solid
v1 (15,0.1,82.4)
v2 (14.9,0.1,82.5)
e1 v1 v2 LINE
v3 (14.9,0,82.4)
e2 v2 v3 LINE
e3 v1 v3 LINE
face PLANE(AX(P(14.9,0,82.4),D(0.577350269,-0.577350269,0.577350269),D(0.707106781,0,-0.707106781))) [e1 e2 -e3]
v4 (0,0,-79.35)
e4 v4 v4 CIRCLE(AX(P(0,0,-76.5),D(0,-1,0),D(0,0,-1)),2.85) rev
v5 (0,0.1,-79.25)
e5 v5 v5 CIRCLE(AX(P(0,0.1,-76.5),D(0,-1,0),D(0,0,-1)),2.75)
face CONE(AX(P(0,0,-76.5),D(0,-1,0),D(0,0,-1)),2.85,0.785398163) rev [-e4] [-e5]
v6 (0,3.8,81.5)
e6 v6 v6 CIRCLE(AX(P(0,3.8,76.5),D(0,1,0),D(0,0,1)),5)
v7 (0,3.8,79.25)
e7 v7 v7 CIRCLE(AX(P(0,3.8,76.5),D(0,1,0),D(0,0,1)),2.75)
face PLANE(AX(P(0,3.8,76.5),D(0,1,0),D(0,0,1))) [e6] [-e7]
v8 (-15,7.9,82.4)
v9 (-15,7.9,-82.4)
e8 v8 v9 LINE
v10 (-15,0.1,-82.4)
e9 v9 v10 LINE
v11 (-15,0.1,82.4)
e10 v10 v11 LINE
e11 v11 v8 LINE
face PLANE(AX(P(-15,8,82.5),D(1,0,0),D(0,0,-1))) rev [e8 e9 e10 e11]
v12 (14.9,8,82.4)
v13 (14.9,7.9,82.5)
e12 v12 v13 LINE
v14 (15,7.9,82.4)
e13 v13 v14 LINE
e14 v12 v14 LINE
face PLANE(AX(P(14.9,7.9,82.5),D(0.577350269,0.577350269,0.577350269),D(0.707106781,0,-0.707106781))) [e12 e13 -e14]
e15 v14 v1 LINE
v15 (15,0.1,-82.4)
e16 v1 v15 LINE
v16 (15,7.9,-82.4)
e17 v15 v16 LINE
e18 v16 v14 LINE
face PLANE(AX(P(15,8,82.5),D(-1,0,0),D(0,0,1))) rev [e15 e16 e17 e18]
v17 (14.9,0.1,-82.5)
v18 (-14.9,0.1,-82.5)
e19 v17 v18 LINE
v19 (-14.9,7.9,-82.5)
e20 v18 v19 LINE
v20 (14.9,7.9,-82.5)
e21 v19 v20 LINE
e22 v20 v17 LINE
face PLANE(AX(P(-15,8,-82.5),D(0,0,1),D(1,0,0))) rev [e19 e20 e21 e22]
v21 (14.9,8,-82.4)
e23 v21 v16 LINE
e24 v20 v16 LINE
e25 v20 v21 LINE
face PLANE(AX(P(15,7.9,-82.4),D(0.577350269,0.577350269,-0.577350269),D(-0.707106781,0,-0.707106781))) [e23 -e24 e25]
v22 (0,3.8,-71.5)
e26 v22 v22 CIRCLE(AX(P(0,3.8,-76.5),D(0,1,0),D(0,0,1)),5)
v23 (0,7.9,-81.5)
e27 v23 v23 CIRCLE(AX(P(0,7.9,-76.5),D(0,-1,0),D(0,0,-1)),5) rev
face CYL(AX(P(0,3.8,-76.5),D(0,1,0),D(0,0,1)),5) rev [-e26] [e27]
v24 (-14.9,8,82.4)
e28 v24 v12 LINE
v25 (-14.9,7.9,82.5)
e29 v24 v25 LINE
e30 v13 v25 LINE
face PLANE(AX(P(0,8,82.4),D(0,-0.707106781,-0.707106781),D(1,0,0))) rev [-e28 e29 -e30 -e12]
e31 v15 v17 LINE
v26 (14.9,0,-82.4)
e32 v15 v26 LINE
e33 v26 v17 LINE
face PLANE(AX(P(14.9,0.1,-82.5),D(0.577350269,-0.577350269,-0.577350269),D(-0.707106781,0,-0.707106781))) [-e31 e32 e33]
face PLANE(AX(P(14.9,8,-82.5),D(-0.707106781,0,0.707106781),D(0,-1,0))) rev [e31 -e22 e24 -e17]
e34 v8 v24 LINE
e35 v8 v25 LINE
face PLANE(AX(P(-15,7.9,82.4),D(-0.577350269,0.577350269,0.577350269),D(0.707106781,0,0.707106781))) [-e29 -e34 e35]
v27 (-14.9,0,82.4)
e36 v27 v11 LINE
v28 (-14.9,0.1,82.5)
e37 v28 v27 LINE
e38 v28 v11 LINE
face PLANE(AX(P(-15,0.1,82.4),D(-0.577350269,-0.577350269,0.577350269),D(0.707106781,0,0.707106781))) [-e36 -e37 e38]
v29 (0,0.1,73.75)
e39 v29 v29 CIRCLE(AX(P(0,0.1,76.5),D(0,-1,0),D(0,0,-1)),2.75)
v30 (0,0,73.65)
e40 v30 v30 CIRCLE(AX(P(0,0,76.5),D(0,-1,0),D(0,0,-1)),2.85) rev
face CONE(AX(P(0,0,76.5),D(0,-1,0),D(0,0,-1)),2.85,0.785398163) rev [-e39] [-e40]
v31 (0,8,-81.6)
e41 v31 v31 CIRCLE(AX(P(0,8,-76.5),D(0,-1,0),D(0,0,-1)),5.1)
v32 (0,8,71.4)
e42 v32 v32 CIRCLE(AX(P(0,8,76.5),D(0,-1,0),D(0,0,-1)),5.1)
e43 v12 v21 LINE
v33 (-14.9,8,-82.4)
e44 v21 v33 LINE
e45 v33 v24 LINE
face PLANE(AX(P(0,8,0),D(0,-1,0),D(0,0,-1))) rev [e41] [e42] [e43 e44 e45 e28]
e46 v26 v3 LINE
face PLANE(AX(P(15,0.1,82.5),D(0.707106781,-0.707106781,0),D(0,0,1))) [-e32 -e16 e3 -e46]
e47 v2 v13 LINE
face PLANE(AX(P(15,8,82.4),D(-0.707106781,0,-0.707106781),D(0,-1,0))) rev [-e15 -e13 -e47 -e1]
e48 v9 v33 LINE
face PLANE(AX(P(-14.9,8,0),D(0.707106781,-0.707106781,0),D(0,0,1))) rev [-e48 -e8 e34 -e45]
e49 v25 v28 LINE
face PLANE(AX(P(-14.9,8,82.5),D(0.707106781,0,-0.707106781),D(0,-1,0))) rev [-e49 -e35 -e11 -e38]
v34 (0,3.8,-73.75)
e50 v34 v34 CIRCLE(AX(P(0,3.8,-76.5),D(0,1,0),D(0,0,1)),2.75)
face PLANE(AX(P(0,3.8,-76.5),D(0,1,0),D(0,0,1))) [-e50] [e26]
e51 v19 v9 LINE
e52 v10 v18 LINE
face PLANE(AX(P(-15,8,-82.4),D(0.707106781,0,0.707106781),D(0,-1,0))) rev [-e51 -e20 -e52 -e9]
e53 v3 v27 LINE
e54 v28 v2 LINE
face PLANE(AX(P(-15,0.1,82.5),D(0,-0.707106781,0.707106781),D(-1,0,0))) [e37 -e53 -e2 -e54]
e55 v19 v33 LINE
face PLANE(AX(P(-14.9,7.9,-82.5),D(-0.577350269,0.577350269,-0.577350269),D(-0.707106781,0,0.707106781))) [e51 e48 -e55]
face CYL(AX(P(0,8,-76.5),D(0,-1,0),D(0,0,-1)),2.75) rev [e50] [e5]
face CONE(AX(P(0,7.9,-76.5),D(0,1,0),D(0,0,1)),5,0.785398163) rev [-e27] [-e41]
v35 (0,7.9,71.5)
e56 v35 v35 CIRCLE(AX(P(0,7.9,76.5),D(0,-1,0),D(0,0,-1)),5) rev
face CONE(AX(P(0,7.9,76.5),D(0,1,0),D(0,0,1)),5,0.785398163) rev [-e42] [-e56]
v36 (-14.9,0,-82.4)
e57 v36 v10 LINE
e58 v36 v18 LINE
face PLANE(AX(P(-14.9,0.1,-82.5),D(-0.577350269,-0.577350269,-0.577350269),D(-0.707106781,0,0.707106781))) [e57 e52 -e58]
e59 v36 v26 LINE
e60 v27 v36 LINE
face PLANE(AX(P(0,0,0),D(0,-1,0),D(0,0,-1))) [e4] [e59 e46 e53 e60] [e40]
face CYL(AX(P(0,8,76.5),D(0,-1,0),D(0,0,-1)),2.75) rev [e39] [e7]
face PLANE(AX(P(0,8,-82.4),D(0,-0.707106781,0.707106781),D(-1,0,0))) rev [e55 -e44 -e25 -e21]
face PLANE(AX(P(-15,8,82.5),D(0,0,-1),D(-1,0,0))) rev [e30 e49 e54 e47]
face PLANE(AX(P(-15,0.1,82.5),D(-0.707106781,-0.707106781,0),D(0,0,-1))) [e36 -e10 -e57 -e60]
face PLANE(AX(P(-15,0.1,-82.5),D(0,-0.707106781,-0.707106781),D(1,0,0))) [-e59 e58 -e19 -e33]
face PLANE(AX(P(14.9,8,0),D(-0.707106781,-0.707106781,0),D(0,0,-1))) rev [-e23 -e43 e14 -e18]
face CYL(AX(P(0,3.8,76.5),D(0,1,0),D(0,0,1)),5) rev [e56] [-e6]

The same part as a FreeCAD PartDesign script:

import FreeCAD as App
import Part
import Sketcher
from FreeCAD import Vector
Q = App.Units.Quantity


def edges_at(feature, points):
    """Names of the edges that pass closest to the given points."""
    edges = feature.Shape.Edges
    near = lambda p: min(range(len(edges)), key=lambda i: edges[i].distToShape(Part.Vertex(*p))[0])
    return sorted({f"Edge{near(p) + 1}" for p in points})

doc = App.newDocument("Part")
body = doc.addObject("PartDesign::Body", "Body")

sketch1 = doc.addObject("Sketcher::SketchObject", "Sketch")
body.addObject(sketch1)
sketch1.AttachmentSupport = (doc.XZ_Plane, [""])
sketch1.MapMode = "FlatFace"
sketch1.addGeometry([
    Part.LineSegment(Vector(-15, -82.5, 0), Vector(-15, 82.5, 0)),
    Part.LineSegment(Vector(-15, 82.5, 0), Vector(15, 82.5, 0)),
    Part.LineSegment(Vector(15, 82.5, 0), Vector(15, -82.5, 0)),
    Part.LineSegment(Vector(15, -82.5, 0), Vector(-15, -82.5, 0)),
    Part.Circle(Vector(0, 76.5, 0), Vector(0, 0, 1), 2.8),
    Part.Circle(Vector(0, -76.5, 0), Vector(0, 0, 1), 2.8),
], False)
sketch1.addConstraint([
    Sketcher.Constraint("Coincident", 0, 2, 1, 1),
    Sketcher.Constraint("Coincident", 1, 2, 2, 1),
    Sketcher.Constraint("Coincident", 2, 2, 3, 1),
    Sketcher.Constraint("Coincident", 3, 2, 0, 1),
    Sketcher.Constraint("Vertical", 0),
    Sketcher.Constraint("Horizontal", 1),
    Sketcher.Constraint("Vertical", 2),
    Sketcher.Constraint("Horizontal", 3),
    Sketcher.Constraint("Equal", 4, 5),
    Sketcher.Constraint("Symmetric", 4, 3, 5, 3, -1, 1),
    Sketcher.Constraint("Symmetric", 0, 2, 2, 2, -1, 1),
    Sketcher.Constraint("PointOnObject", 4, 3, -2),
    Sketcher.Constraint("Diameter", 4, Q("5.5 mm")),
    Sketcher.Constraint("DistanceX", 1, 1, 1, 2, Q("30 mm")),
    Sketcher.Constraint("DistanceY", 0, 1, 0, 2, Q("165 mm")),
    Sketcher.Constraint("DistanceY", 5, 3, 4, 3, Q("153 mm")),
])
pad1 = doc.addObject("PartDesign::Pad", "Pad")
body.addObject(pad1)
pad1.Profile = sketch1
pad1.Length = 8
pad1.Reversed = True

sketch2 = doc.addObject("Sketcher::SketchObject", "Sketch001")
body.addObject(sketch2)
sketch2.AttachmentSupport = (doc.XZ_Plane, [""])
sketch2.MapMode = "FlatFace"
sketch2.AttachmentOffset = App.Placement(Vector(0, 0, -8), App.Rotation())
sketch2.addGeometry([
    Part.Circle(Vector(0, -76, 0), Vector(0, 0, 1), 5),
    Part.Circle(Vector(0, 76, 0), Vector(0, 0, 1), 5),
], False)
sketch2.addConstraint([
    Sketcher.Constraint("Equal", 0, 1),
    Sketcher.Constraint("Symmetric", 0, 3, 1, 3, -1, 1),
    Sketcher.Constraint("PointOnObject", 0, 3, -2),
    Sketcher.Constraint("Diameter", 0, Q("10 mm")),
    Sketcher.Constraint("DistanceY", 0, 3, 1, 3, Q("153 mm")),
])
pocket1 = doc.addObject("PartDesign::Pocket", "Pocket")
body.addObject(pocket1)
pocket1.Profile = sketch2
pocket1.Length = 4.2
pocket1.Reversed = True
doc.recompute()

chamfer = doc.addObject("PartDesign::Chamfer", "Chamfer")
body.addObject(chamfer)
chamfer.Base = (pocket1, edges_at(pocket1, [
    (-2.75, 0, -76.5),
    (-15, 8, 0),
    (-2.75, 0, 76.5),
    (0, 8, 82.5),
    (-5, 8, -76.5),
    (-5, 8, 76.5),
    (15, 8, 0),
    (0, 0, 82.5),
    (-15, 0, 0),
    (0, 0, -82.5),
    (15, 0, 0),
    (15, 4, 82.5),
    (-15, 4, 82.5),
    (-15, 4, -82.5),
    (15, 4, -82.5),
    (0, 8, -82.5),
]))
chamfer.Size = 0.1

doc.recompute()
